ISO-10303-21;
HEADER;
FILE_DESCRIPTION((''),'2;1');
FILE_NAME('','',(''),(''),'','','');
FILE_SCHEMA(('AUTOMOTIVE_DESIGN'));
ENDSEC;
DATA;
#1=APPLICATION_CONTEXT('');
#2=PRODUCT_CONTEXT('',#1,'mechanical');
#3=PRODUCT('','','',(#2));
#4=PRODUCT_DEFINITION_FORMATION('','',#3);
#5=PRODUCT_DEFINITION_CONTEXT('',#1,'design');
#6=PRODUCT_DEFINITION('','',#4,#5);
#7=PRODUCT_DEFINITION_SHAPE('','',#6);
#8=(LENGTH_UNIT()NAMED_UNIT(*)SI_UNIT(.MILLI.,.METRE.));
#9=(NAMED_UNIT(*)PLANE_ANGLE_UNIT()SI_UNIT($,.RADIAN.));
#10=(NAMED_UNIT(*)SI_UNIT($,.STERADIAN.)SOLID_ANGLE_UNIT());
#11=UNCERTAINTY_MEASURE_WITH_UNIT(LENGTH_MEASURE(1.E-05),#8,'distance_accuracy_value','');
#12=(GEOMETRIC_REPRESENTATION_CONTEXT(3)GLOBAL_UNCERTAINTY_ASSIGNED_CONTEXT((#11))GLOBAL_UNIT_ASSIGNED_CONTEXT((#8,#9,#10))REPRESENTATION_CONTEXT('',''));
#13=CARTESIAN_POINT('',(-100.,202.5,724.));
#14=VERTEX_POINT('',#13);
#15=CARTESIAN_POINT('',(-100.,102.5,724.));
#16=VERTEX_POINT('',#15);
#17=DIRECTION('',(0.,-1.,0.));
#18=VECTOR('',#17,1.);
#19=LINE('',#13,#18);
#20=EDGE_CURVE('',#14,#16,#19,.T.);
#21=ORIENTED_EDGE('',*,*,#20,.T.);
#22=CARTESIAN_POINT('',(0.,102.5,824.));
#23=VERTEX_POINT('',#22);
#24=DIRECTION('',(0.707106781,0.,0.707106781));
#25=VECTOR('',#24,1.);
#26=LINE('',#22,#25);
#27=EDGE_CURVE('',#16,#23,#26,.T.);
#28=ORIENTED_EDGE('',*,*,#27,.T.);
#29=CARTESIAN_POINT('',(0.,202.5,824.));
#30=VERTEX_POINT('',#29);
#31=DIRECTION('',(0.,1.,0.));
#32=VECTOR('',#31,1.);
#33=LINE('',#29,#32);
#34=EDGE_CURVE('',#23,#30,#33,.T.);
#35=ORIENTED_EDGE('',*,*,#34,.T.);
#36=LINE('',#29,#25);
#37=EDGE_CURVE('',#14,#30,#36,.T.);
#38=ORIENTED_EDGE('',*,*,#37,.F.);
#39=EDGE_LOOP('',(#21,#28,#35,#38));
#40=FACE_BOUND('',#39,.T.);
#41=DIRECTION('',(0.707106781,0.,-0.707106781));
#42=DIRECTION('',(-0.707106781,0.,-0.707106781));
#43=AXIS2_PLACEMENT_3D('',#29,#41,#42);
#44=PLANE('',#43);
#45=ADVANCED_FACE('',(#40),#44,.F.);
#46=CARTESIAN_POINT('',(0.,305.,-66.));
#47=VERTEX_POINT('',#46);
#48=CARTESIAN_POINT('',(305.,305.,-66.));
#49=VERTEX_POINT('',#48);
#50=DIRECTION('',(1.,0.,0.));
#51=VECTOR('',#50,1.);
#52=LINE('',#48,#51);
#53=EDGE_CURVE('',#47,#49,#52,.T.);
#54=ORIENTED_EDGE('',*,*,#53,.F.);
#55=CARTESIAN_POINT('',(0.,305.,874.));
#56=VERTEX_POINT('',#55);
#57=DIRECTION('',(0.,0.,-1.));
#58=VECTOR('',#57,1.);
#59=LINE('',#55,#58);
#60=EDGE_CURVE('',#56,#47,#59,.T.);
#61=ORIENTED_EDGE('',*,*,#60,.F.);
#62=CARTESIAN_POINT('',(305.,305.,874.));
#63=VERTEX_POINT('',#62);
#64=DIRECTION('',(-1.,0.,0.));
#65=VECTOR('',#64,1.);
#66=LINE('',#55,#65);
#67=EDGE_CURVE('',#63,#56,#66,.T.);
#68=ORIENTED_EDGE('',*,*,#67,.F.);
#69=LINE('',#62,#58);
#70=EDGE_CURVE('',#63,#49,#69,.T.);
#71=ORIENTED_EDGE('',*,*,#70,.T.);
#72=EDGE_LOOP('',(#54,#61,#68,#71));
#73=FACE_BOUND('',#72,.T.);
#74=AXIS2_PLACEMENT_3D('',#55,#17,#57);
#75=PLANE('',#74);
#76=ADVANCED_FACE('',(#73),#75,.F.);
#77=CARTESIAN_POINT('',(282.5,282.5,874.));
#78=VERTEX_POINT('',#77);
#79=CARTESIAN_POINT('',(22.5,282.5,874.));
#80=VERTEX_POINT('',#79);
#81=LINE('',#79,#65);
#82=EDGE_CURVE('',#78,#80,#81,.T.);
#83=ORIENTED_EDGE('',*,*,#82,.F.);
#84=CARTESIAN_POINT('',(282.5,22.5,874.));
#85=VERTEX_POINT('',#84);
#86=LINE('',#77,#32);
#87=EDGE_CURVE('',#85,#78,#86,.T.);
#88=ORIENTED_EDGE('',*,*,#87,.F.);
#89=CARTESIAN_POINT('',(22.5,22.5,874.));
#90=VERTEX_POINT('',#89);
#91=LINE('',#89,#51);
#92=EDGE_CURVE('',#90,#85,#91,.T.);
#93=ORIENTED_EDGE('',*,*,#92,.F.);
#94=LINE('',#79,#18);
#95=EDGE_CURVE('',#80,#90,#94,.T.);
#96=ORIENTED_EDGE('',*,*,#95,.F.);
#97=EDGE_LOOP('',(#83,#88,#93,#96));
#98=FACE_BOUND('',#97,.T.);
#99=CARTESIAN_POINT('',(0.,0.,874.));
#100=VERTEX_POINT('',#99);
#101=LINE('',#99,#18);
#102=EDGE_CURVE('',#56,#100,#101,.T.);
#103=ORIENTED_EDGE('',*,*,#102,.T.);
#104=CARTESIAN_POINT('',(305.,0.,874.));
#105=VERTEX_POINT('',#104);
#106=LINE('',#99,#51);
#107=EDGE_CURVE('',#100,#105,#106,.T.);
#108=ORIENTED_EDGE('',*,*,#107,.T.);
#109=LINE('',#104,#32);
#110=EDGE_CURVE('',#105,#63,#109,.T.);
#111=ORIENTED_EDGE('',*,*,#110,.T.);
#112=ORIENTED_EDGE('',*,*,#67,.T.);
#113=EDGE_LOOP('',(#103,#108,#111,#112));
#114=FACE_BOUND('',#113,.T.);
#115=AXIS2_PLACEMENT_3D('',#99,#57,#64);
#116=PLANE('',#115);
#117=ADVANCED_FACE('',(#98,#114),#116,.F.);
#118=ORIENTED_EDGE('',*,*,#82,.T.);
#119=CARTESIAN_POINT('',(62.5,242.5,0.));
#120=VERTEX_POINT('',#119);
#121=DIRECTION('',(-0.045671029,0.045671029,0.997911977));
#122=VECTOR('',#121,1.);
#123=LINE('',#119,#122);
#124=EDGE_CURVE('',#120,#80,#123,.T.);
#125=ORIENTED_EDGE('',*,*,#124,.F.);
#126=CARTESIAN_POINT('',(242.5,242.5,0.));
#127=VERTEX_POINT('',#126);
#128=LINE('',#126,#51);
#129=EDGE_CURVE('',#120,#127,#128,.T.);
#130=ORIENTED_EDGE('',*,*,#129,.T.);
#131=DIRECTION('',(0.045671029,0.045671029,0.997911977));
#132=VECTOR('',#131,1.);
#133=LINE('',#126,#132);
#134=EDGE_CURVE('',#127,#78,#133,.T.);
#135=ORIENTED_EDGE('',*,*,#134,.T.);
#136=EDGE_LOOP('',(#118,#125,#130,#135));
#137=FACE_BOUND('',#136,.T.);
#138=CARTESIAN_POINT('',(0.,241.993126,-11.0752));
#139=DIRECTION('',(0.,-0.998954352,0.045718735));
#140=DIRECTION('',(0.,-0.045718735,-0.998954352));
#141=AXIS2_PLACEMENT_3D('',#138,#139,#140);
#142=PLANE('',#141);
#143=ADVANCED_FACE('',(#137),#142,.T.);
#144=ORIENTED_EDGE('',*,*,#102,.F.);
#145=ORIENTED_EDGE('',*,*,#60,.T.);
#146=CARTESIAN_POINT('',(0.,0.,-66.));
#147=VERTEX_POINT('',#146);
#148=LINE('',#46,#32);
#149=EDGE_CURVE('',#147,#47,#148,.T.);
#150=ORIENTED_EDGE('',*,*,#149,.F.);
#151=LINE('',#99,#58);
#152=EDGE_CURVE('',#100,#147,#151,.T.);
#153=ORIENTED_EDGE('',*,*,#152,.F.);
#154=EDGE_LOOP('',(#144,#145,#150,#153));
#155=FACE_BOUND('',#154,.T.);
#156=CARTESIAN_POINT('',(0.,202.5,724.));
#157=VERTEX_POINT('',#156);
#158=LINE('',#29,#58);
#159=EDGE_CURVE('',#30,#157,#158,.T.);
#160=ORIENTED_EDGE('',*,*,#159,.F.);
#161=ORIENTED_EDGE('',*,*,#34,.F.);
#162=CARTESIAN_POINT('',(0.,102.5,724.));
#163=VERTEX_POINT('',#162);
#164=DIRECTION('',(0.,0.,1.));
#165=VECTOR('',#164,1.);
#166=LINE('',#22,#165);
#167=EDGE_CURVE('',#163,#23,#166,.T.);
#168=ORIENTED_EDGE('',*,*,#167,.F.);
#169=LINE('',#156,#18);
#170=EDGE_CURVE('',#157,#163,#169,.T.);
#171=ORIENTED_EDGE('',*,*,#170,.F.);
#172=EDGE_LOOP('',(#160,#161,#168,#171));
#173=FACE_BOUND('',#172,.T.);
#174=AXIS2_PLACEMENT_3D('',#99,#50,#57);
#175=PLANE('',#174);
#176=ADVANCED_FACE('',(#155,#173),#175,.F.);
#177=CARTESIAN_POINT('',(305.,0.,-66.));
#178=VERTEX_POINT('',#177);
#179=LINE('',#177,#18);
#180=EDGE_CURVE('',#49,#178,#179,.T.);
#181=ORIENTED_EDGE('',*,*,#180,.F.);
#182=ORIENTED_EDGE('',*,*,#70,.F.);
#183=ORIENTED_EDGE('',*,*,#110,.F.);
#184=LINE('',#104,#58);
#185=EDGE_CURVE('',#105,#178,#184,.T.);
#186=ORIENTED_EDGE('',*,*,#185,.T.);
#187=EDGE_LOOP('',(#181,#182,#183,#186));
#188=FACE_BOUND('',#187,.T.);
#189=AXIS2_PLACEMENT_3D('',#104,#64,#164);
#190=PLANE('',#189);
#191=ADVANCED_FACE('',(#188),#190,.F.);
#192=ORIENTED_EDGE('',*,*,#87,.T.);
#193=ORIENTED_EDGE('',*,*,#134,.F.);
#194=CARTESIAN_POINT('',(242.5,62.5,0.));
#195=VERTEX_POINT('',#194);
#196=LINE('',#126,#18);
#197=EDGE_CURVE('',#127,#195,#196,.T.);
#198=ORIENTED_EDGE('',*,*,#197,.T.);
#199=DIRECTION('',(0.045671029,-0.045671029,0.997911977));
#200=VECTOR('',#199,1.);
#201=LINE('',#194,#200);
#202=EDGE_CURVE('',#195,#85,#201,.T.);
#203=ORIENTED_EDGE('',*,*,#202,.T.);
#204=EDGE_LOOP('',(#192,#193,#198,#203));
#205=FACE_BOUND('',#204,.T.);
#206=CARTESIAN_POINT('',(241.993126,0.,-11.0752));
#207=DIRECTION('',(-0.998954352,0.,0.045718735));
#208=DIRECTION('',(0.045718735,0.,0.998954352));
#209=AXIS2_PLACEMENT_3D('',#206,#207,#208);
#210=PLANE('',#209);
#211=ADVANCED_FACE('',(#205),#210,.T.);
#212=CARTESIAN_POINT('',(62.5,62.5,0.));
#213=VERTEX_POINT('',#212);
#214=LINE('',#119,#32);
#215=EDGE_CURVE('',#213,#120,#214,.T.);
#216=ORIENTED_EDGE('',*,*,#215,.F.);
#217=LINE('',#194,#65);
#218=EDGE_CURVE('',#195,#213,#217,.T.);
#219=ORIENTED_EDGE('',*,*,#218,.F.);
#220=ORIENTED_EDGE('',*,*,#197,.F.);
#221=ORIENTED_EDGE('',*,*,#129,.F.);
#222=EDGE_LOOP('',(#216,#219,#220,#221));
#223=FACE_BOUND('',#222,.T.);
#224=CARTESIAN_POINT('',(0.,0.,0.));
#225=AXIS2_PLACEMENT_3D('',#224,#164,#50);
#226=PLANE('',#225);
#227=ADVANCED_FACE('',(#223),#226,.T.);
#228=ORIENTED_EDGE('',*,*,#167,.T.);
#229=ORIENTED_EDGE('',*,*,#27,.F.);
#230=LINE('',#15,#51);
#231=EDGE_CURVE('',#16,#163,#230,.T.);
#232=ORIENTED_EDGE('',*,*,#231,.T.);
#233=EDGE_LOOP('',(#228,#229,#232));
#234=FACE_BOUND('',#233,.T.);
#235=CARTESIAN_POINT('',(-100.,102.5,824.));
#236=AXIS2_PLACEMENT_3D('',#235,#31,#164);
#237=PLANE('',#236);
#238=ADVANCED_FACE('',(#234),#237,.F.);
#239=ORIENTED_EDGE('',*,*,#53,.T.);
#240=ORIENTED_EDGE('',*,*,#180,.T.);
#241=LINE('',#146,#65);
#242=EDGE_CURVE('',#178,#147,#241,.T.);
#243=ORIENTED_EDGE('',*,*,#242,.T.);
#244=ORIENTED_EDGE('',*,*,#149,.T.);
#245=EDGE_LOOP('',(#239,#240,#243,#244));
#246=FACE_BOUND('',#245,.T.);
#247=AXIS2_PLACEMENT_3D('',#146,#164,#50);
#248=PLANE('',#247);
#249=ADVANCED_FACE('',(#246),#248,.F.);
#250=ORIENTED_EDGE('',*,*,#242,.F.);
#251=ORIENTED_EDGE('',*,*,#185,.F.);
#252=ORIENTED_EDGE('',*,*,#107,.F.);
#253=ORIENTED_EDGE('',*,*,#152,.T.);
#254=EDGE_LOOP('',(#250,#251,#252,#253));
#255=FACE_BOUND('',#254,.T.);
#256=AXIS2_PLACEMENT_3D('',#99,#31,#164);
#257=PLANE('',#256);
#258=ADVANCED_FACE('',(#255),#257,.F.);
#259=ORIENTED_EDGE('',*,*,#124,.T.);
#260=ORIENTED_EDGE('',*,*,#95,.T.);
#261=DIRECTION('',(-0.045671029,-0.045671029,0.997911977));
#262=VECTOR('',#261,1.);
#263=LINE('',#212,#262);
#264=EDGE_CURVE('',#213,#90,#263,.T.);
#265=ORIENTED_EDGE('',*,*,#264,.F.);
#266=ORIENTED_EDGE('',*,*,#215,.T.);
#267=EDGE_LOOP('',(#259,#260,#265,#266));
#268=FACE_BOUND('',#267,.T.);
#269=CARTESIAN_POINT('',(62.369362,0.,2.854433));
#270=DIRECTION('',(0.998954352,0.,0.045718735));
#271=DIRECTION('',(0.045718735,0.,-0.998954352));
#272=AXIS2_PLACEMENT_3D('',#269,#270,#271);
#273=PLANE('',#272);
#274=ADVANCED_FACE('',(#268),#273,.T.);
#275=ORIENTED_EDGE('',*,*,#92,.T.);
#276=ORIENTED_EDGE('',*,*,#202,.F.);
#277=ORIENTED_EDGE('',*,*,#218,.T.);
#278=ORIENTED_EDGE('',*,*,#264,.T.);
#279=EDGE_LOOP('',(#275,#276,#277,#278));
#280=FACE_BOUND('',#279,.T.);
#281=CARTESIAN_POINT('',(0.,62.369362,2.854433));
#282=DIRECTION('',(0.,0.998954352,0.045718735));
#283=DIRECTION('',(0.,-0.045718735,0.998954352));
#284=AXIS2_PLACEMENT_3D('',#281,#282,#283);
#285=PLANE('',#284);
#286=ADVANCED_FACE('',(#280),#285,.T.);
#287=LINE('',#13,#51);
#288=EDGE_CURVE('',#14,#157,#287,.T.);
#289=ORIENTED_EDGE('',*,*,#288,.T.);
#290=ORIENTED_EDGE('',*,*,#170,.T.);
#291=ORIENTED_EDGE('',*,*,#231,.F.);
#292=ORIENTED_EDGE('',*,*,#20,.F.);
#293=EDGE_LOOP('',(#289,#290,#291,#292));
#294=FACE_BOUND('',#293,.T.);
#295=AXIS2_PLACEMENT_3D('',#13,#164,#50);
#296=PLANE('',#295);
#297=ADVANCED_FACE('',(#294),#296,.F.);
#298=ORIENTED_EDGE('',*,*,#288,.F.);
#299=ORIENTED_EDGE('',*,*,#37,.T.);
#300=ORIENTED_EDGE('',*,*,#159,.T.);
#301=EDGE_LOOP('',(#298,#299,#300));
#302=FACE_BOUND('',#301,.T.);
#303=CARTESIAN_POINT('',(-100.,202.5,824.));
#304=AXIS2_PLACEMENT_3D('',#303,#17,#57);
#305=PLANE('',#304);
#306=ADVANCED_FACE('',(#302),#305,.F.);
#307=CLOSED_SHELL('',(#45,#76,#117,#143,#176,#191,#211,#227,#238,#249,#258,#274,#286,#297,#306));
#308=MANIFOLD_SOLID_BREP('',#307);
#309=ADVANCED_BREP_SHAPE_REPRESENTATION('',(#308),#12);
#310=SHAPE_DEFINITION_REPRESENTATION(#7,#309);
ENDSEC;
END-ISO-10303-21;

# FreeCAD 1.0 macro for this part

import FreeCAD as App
import Part
import Sketcher

V = App.Vector

doc = App.newDocument("Part")
params = doc.addObject("Spreadsheet::Sheet", "Params")
for row, (alias, value) in enumerate([
    ("sketch1_width", "305 mm"),
    ("pad1_length", "874 mm"),
    ("sketch2_width", "100 mm"),
    ("pad2_length", "100 mm"),
    ("sketch3_width", "100 mm"),
    ("pocket1_length", "100 mm"),
    ("sketch4_width", "180 mm"),
    ("sketch5_width", "260 mm"),
    ("sketch6_width", "305 mm"),
    ("pad3_length", "66 mm"),
], start=1):
    params.set(f"A{row}", alias)
    params.set(f"B{row}", "=" + value)
    params.setAlias(f"B{row}", alias)

body = doc.addObject("PartDesign::Body", "Body")

# Sketch on XY plane
sketch1 = body.newObject("Sketcher::SketchObject", "Sketch")
sketch1.AttachmentSupport = (doc.getObject("XY_Plane"), [""])
sketch1.MapMode = "FlatFace"
sketch1.addGeometry([
    Part.LineSegment(V(0, 305, 0), V(0, 0, 0)),
    Part.LineSegment(V(0, 0, 0), V(305, 0, 0)),
    Part.LineSegment(V(305, 0, 0), V(305, 305, 0)),
    Part.LineSegment(V(305, 305, 0), V(0, 305, 0)),
], False)
sketch1.addConstraint([
    Sketcher.Constraint("Coincident", 0, 2, 1, 1),
    Sketcher.Constraint("Coincident", 1, 2, 2, 1),
    Sketcher.Constraint("Coincident", 2, 2, 3, 1),
    Sketcher.Constraint("Coincident", 3, 2, 0, 1),
    Sketcher.Constraint("Vertical", 0),
    Sketcher.Constraint("Horizontal", 1),
    Sketcher.Constraint("Vertical", 2),
    Sketcher.Constraint("Horizontal", 3),
    Sketcher.Constraint("Coincident", 0, 2, -1, 1),
    Sketcher.Constraint("Equal", 3, 0),
    Sketcher.Constraint("DistanceX", 1, 1, 1, 2, 305.0),
])
sketch1.setExpression("Constraints[10]", "Params.sketch1_width")
pad1 = body.newObject("PartDesign::Pad", "Pad")
pad1.Profile = sketch1
pad1.setExpression("Length", "Params.pad1_length")

# Sketch on YZ plane
sketch2 = body.newObject("Sketcher::SketchObject", "Sketch001")
sketch2.AttachmentSupport = (doc.getObject("YZ_Plane"), [""])
sketch2.MapMode = "FlatFace"
sketch2.addGeometry([
    Part.LineSegment(V(202, 724, 0), V(102, 724, 0)),
    Part.LineSegment(V(102, 724, 0), V(102, 824, 0)),
    Part.LineSegment(V(102, 824, 0), V(202, 824, 0)),
    Part.LineSegment(V(202, 824, 0), V(202, 724, 0)),
], False)
sketch2.addConstraint([
    Sketcher.Constraint("Coincident", 0, 2, 1, 1),
    Sketcher.Constraint("Coincident", 1, 2, 2, 1),
    Sketcher.Constraint("Coincident", 2, 2, 3, 1),
    Sketcher.Constraint("Coincident", 3, 2, 0, 1),
    Sketcher.Constraint("Horizontal", 0),
    Sketcher.Constraint("Vertical", 1),
    Sketcher.Constraint("Horizontal", 2),
    Sketcher.Constraint("Vertical", 3),
    Sketcher.Constraint("Equal", 2, 1),
    Sketcher.Constraint("DistanceX", 0, 2, 0, 1, 100.0),
    Sketcher.Constraint("DistanceY", -1, 1, 0, 2, 724.0),
    Sketcher.Constraint("DistanceX", -1, 1, 0, 2, 102.5),
])
sketch2.setExpression("Constraints[9]", "Params.sketch2_width")
pad2 = body.newObject("PartDesign::Pad", "Pad001")
pad2.Profile = sketch2
pad2.setExpression("Length", "Params.pad2_length")
pad2.Reversed = True

# Sketch on XZ plane
sketch3 = body.newObject("Sketcher::SketchObject", "Sketch002")
sketch3.AttachmentSupport = (doc.getObject("XZ_Plane"), [""])
sketch3.MapMode = "FlatFace"
sketch3.AttachmentOffset = App.Placement(V(0, 0, -102.5), App.Rotation())
sketch3.addGeometry([
    Part.LineSegment(V(0, 824, 0), V(-100, 824, 0)),
    Part.LineSegment(V(-100, 824, 0), V(-100, 724, 0)),
    Part.LineSegment(V(-100, 724, 0), V(0, 824, 0)),
], False)
sketch3.addConstraint([
    Sketcher.Constraint("Coincident", 0, 2, 1, 1),
    Sketcher.Constraint("Coincident", 1, 2, 2, 1),
    Sketcher.Constraint("Coincident", 2, 2, 0, 1),
    Sketcher.Constraint("Horizontal", 0),
    Sketcher.Constraint("Vertical", 1),
    Sketcher.Constraint("PointOnObject", 2, 2, -2),
    Sketcher.Constraint("Equal", 0, 1),
    Sketcher.Constraint("DistanceX", 0, 2, 0, 1, 100.0),
    Sketcher.Constraint("DistanceY", -1, 1, 0, 2, 824.0),
])
sketch3.setExpression("Constraints[7]", "Params.sketch3_width")
pocket1 = body.newObject("PartDesign::Pocket", "Pocket")
pocket1.Profile = sketch3
pocket1.setExpression("Length", "Params.pocket1_length")

# Sketch on XY plane
sketch4 = body.newObject("Sketcher::SketchObject", "Sketch003")
sketch4.AttachmentSupport = (doc.getObject("XY_Plane"), [""])
sketch4.MapMode = "FlatFace"
sketch4.addGeometry([
    Part.LineSegment(V(62, 242, 0), V(242, 242, 0)),
    Part.LineSegment(V(242, 242, 0), V(242, 62, 0)),
    Part.LineSegment(V(242, 62, 0), V(62, 62, 0)),
    Part.LineSegment(V(62, 62, 0), V(62, 242, 0)),
], False)
sketch4.addConstraint([
    Sketcher.Constraint("Coincident", 0, 2, 1, 1),
    Sketcher.Constraint("Coincident", 1, 2, 2, 1),
    Sketcher.Constraint("Coincident", 2, 2, 3, 1),
    Sketcher.Constraint("Coincident", 3, 2, 0, 1),
    Sketcher.Constraint("Horizontal", 0),
    Sketcher.Constraint("Vertical", 1),
    Sketcher.Constraint("Horizontal", 2),
    Sketcher.Constraint("Vertical", 3),
    Sketcher.Constraint("Equal", 2, 1),
    Sketcher.Constraint("DistanceX", 0, 1, 0, 2, 180.0),
    Sketcher.Constraint("DistanceX", -1, 1, 0, 2, 242.5),
    Sketcher.Constraint("DistanceY", -1, 1, 0, 2, 242.5),
])
sketch4.setExpression("Constraints[9]", "Params.sketch4_width")

# Sketch on XY plane
sketch5 = body.newObject("Sketcher::SketchObject", "Sketch004")
sketch5.AttachmentSupport = (doc.getObject("XY_Plane"), [""])
sketch5.MapMode = "FlatFace"
sketch5.AttachmentOffset = App.Placement(V(0, 0, 874), App.Rotation())
sketch5.addGeometry([
    Part.LineSegment(V(282, 282, 0), V(22, 282, 0)),
    Part.LineSegment(V(22, 282, 0), V(22, 22, 0)),
    Part.LineSegment(V(22, 22, 0), V(282, 22, 0)),
    Part.LineSegment(V(282, 22, 0), V(282, 282, 0)),
], False)
sketch5.addConstraint([
    Sketcher.Constraint("Coincident", 0, 2, 1, 1),
    Sketcher.Constraint("Coincident", 1, 2, 2, 1),
    Sketcher.Constraint("Coincident", 2, 2, 3, 1),
    Sketcher.Constraint("Coincident", 3, 2, 0, 1),
    Sketcher.Constraint("Horizontal", 0),
    Sketcher.Constraint("Vertical", 1),
    Sketcher.Constraint("Horizontal", 2),
    Sketcher.Constraint("Vertical", 3),
    Sketcher.Constraint("Equal", 2, 1),
    Sketcher.Constraint("DistanceX", 0, 2, 0, 1, 260.0),
    Sketcher.Constraint("DistanceX", -1, 1, 0, 2, 22.5),
    Sketcher.Constraint("DistanceY", -1, 1, 0, 2, 282.5),
])
sketch5.setExpression("Constraints[9]", "Params.sketch5_width")

subtractiveloft = body.newObject("PartDesign::SubtractiveLoft", "SubtractiveLoft")
subtractiveloft.Profile = sketch4
subtractiveloft.Sections = [sketch5]

# Sketch on XY plane
sketch6 = body.newObject("Sketcher::SketchObject", "Sketch005")
sketch6.AttachmentSupport = (doc.getObject("XY_Plane"), [""])
sketch6.MapMode = "FlatFace"
sketch6.addGeometry([
    Part.LineSegment(V(305, 305, 0), V(305, 0, 0)),
    Part.LineSegment(V(305, 0, 0), V(0, 0, 0)),
    Part.LineSegment(V(0, 0, 0), V(0, 305, 0)),
    Part.LineSegment(V(0, 305, 0), V(305, 305, 0)),
], False)
sketch6.addConstraint([
    Sketcher.Constraint("Coincident", 0, 2, 1, 1),
    Sketcher.Constraint("Coincident", 1, 2, 2, 1),
    Sketcher.Constraint("Coincident", 2, 2, 3, 1),
    Sketcher.Constraint("Coincident", 3, 2, 0, 1),
    Sketcher.Constraint("Vertical", 0),
    Sketcher.Constraint("Horizontal", 1),
    Sketcher.Constraint("Vertical", 2),
    Sketcher.Constraint("Horizontal", 3),
    Sketcher.Constraint("Coincident", 1, 2, -1, 1),
    Sketcher.Constraint("Equal", 3, 0),
    Sketcher.Constraint("DistanceX", 1, 2, 1, 1, 305.0),
])
sketch6.setExpression("Constraints[10]", "Params.sketch6_width")
pad3 = body.newObject("PartDesign::Pad", "Pad002")
pad3.Profile = sketch6
pad3.setExpression("Length", "Params.pad3_length")
pad3.Reversed = True

doc.recompute()
